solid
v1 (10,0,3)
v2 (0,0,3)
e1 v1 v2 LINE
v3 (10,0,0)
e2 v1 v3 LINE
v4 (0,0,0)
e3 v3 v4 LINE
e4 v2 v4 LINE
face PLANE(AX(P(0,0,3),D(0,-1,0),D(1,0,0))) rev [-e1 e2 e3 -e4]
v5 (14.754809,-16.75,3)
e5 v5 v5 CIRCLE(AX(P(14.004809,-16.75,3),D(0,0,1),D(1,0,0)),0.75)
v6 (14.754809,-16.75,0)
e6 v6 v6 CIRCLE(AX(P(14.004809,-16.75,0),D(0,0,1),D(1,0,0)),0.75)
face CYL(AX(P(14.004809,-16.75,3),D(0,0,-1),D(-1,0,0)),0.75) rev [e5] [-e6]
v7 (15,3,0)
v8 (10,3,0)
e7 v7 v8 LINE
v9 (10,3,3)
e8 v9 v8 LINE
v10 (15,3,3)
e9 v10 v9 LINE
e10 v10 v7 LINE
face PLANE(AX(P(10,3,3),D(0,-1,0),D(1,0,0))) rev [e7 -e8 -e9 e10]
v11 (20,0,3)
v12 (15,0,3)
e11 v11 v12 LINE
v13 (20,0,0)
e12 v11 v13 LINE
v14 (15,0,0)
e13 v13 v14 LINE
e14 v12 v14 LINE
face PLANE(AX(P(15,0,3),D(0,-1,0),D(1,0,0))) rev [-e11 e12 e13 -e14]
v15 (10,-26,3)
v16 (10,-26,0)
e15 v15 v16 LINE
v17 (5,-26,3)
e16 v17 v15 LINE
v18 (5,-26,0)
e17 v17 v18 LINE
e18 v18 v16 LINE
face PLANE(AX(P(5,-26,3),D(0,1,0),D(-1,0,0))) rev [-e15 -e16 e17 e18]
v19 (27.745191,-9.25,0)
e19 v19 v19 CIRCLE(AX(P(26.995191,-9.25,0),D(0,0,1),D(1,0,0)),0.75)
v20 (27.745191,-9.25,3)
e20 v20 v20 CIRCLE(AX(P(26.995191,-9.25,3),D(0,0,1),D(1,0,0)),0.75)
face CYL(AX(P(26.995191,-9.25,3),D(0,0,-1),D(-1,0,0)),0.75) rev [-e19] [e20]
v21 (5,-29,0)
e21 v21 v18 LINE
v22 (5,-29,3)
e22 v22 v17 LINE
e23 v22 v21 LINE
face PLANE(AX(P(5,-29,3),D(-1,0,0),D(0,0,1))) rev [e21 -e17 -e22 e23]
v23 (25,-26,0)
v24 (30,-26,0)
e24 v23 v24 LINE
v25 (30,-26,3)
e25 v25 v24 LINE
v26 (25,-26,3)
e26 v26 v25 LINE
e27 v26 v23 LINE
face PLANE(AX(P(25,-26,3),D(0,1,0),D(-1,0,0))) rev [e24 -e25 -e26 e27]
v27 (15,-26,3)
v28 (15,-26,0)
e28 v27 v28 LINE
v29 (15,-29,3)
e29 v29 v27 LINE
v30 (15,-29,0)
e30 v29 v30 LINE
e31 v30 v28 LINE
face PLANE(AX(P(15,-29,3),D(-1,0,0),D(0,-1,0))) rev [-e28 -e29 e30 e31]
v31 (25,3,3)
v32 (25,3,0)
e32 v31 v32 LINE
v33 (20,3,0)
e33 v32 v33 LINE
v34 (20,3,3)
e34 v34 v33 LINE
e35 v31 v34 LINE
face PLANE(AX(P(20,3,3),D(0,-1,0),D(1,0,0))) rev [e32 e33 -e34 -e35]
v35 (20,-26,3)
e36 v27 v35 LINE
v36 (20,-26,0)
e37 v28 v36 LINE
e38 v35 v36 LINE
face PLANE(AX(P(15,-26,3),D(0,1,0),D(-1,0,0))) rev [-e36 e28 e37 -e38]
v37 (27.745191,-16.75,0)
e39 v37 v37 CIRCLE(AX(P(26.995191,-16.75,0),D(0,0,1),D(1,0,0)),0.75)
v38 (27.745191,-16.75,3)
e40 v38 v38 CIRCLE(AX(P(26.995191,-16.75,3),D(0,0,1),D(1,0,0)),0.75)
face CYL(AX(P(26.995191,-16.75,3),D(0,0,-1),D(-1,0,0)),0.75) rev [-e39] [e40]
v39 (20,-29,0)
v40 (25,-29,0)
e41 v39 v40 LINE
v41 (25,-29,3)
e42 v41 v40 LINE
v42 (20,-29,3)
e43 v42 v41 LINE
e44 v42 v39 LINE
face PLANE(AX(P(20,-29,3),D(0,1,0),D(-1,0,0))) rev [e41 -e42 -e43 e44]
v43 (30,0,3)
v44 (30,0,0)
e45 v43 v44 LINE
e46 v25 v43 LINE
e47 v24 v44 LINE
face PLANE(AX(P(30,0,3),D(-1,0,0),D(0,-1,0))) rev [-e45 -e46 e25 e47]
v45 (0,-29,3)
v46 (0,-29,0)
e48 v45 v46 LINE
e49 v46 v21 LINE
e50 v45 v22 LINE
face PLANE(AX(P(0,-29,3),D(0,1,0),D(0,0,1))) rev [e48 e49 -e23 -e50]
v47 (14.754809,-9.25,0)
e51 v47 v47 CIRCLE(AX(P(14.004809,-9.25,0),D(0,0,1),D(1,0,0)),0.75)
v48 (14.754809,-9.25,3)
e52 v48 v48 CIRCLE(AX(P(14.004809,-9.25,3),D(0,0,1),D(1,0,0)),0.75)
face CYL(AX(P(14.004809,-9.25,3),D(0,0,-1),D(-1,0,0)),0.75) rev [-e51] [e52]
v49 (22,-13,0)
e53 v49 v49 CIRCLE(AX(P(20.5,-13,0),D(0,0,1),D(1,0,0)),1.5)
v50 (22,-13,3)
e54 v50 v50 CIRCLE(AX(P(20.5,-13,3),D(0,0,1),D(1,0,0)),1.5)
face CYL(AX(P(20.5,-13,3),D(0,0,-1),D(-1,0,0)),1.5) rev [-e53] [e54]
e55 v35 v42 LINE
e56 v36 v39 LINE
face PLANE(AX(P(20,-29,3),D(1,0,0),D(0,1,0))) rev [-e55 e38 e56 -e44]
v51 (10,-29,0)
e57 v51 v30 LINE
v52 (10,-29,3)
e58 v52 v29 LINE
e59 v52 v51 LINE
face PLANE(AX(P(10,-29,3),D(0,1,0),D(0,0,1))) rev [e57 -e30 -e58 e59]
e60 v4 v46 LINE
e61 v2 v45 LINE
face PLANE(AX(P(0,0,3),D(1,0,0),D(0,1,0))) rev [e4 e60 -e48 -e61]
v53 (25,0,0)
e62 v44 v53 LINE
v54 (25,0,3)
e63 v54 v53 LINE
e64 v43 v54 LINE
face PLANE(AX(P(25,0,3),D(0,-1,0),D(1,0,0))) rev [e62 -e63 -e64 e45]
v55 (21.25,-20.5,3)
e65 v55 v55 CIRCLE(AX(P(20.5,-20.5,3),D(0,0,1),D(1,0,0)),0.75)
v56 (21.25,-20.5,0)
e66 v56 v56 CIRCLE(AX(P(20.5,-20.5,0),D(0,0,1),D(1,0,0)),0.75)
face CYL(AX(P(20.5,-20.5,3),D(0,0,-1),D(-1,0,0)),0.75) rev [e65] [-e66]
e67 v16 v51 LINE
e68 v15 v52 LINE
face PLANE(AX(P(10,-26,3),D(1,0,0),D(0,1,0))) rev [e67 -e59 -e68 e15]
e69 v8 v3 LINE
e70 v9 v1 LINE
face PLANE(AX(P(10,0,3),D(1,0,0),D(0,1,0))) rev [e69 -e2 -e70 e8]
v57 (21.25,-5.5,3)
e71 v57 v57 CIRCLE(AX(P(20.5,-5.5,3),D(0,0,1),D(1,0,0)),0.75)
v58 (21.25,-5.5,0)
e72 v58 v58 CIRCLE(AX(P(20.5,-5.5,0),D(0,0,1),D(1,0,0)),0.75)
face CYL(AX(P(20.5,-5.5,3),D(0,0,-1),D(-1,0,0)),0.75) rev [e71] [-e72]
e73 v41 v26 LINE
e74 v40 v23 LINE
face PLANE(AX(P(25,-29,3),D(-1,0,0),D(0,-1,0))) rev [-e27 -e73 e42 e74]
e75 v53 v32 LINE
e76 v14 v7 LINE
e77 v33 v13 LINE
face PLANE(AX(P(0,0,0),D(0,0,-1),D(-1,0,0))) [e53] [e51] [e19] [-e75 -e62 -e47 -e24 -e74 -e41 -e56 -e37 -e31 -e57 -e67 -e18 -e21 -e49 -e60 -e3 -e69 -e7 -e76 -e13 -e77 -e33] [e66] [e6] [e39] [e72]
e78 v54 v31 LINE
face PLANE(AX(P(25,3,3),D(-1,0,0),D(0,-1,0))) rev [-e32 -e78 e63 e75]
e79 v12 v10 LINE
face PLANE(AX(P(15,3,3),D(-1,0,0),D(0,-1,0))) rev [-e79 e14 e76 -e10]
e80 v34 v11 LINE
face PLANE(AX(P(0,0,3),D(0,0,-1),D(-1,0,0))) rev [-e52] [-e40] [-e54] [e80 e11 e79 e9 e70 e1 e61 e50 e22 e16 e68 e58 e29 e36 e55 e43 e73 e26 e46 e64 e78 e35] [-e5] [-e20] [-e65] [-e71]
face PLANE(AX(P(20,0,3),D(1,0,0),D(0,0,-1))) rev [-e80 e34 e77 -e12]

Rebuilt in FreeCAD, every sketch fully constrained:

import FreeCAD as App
import Part
import Sketcher
Q = App.Units.Quantity

doc = App.newDocument("Part")
params = doc.addObject("Spreadsheet::Sheet", "Params")
for row, (alias, value) in enumerate([
    ("sketch1_diameter", "3 mm"),
    ("sketch1_diameter2", "1.5 mm"),
    ("sketch1_width", "10 mm"),
    ("sketch1_height", "3 mm"),
    ("sketch1_height2", "29 mm"),
    ("pad1_length", "3 mm"),
], start=1):
    params.set(f"A{row}", alias)
    params.set(f"B{row}", "=" + value)
    params.setAlias(f"B{row}", alias)

body = doc.addObject("PartDesign::Body", "Body")

# Sketch on XY plane
sketch1 = body.newObject("Sketcher::SketchObject", "Sketch")
sketch1.AttachmentSupport = (doc.getObject("XY_Plane"), [""])
sketch1.MapMode = "FlatFace"
sketch1.addGeometry(Part.LineSegment(App.Vector(10, 3, 0), App.Vector(10, 0, 0)), False)
sketch1.addGeometry(Part.LineSegment(App.Vector(10, 0, 0), App.Vector(0, 0, 0)), False)
sketch1.addGeometry(Part.LineSegment(App.Vector(0, 0, 0), App.Vector(0, -29, 0)), False)
sketch1.addGeometry(Part.LineSegment(App.Vector(0, -29, 0), App.Vector(5, -29, 0)), False)
sketch1.addGeometry(Part.LineSegment(App.Vector(5, -29, 0), App.Vector(5, -26, 0)), False)
sketch1.addGeometry(Part.LineSegment(App.Vector(5, -26, 0), App.Vector(10, -26, 0)), False)
sketch1.addGeometry(Part.LineSegment(App.Vector(10, -26, 0), App.Vector(10, -29, 0)), False)
sketch1.addGeometry(Part.LineSegment(App.Vector(10, -29, 0), App.Vector(15, -29, 0)), False)
sketch1.addGeometry(Part.LineSegment(App.Vector(15, -29, 0), App.Vector(15, -26, 0)), False)
sketch1.addGeometry(Part.LineSegment(App.Vector(15, -26, 0), App.Vector(20, -26, 0)), False)
sketch1.addGeometry(Part.LineSegment(App.Vector(20, -26, 0), App.Vector(20, -29, 0)), False)
sketch1.addGeometry(Part.LineSegment(App.Vector(20, -29, 0), App.Vector(25, -29, 0)), False)
sketch1.addGeometry(Part.LineSegment(App.Vector(25, -29, 0), App.Vector(25, -26, 0)), False)
sketch1.addGeometry(Part.LineSegment(App.Vector(25, -26, 0), App.Vector(30, -26, 0)), False)
sketch1.addGeometry(Part.LineSegment(App.Vector(30, -26, 0), App.Vector(30, 0, 0)), False)
sketch1.addGeometry(Part.LineSegment(App.Vector(30, 0, 0), App.Vector(25, 0, 0)), False)
sketch1.addGeometry(Part.LineSegment(App.Vector(25, 0, 0), App.Vector(25, 3, 0)), False)
sketch1.addGeometry(Part.LineSegment(App.Vector(25, 3, 0), App.Vector(20, 3, 0)), False)
sketch1.addGeometry(Part.LineSegment(App.Vector(20, 3, 0), App.Vector(20, 0, 0)), False)
sketch1.addGeometry(Part.LineSegment(App.Vector(20, 0, 0), App.Vector(15, 0, 0)), False)
sketch1.addGeometry(Part.LineSegment(App.Vector(15, 0, 0), App.Vector(15, 3, 0)), False)
sketch1.addGeometry(Part.LineSegment(App.Vector(15, 3, 0), App.Vector(10, 3, 0)), False)
sketch1.addGeometry(Part.Circle(App.Vector(20.5, -20.5, 0), App.Vector(0, 0, 1), 0.8), False)
sketch1.addGeometry(Part.Circle(App.Vector(27, -16.8, 0), App.Vector(0, 0, 1), 0.8), False)
sketch1.addGeometry(Part.Circle(App.Vector(14, -16.8, 0), App.Vector(0, 0, 1), 0.8), False)
sketch1.addGeometry(Part.Circle(App.Vector(27, -9.2, 0), App.Vector(0, 0, 1), 0.8), False)
sketch1.addGeometry(Part.Circle(App.Vector(20.5, -13, 0), App.Vector(0, 0, 1), 1.5), False)
sketch1.addGeometry(Part.Circle(App.Vector(20.5, -5.5, 0), App.Vector(0, 0, 1), 0.8), False)
sketch1.addGeometry(Part.Circle(App.Vector(14, -9.2, 0), App.Vector(0, 0, 1), 0.8), False)
sketch1.addConstraint(Sketcher.Constraint("Coincident", 0, 2, 1, 1))
sketch1.addConstraint(Sketcher.Constraint("Coincident", 1, 2, 2, 1))
sketch1.addConstraint(Sketcher.Constraint("Coincident", 2, 2, 3, 1))
sketch1.addConstraint(Sketcher.Constraint("Coincident", 3, 2, 4, 1))
sketch1.addConstraint(Sketcher.Constraint("Coincident", 4, 2, 5, 1))
sketch1.addConstraint(Sketcher.Constraint("Coincident", 5, 2, 6, 1))
sketch1.addConstraint(Sketcher.Constraint("Coincident", 6, 2, 7, 1))
sketch1.addConstraint(Sketcher.Constraint("Coincident", 7, 2, 8, 1))
sketch1.addConstraint(Sketcher.Constraint("Coincident", 8, 2, 9, 1))
sketch1.addConstraint(Sketcher.Constraint("Coincident", 9, 2, 10, 1))
sketch1.addConstraint(Sketcher.Constraint("Coincident", 10, 2, 11, 1))
sketch1.addConstraint(Sketcher.Constraint("Coincident", 11, 2, 12, 1))
sketch1.addConstraint(Sketcher.Constraint("Coincident", 12, 2, 13, 1))
sketch1.addConstraint(Sketcher.Constraint("Coincident", 13, 2, 14, 1))
sketch1.addConstraint(Sketcher.Constraint("Coincident", 14, 2, 15, 1))
sketch1.addConstraint(Sketcher.Constraint("Coincident", 15, 2, 16, 1))
sketch1.addConstraint(Sketcher.Constraint("Coincident", 16, 2, 17, 1))
sketch1.addConstraint(Sketcher.Constraint("Coincident", 17, 2, 18, 1))
sketch1.addConstraint(Sketcher.Constraint("Coincident", 18, 2, 19, 1))
sketch1.addConstraint(Sketcher.Constraint("Coincident", 19, 2, 20, 1))
sketch1.addConstraint(Sketcher.Constraint("Coincident", 20, 2, 21, 1))
sketch1.addConstraint(Sketcher.Constraint("Coincident", 21, 2, 0, 1))
sketch1.addConstraint(Sketcher.Constraint("Vertical", 0))
sketch1.addConstraint(Sketcher.Constraint("Horizontal", 1))
sketch1.addConstraint(Sketcher.Constraint("Vertical", 2))
sketch1.addConstraint(Sketcher.Constraint("Horizontal", 3))
sketch1.addConstraint(Sketcher.Constraint("Vertical", 4))
sketch1.addConstraint(Sketcher.Constraint("Horizontal", 5))
sketch1.addConstraint(Sketcher.Constraint("Vertical", 6))
sketch1.addConstraint(Sketcher.Constraint("Horizontal", 7))
sketch1.addConstraint(Sketcher.Constraint("Vertical", 8))
sketch1.addConstraint(Sketcher.Constraint("Horizontal", 9))
sketch1.addConstraint(Sketcher.Constraint("Vertical", 10))
sketch1.addConstraint(Sketcher.Constraint("Horizontal", 11))
sketch1.addConstraint(Sketcher.Constraint("Vertical", 12))
sketch1.addConstraint(Sketcher.Constraint("Horizontal", 13))
sketch1.addConstraint(Sketcher.Constraint("Vertical", 14))
sketch1.addConstraint(Sketcher.Constraint("Horizontal", 15))
sketch1.addConstraint(Sketcher.Constraint("Vertical", 16))
sketch1.addConstraint(Sketcher.Constraint("Horizontal", 17))
sketch1.addConstraint(Sketcher.Constraint("Vertical", 18))
sketch1.addConstraint(Sketcher.Constraint("Horizontal", 19))
sketch1.addConstraint(Sketcher.Constraint("Vertical", 20))
sketch1.addConstraint(Sketcher.Constraint("Horizontal", 21))
sketch1.addConstraint(Sketcher.Constraint("Coincident", 1, 2, -1, 1))
sketch1.addConstraint(Sketcher.Constraint("Equal", 22, 23))
sketch1.addConstraint(Sketcher.Constraint("Equal", 23, 24))
sketch1.addConstraint(Sketcher.Constraint("Equal", 24, 25))
sketch1.addConstraint(Sketcher.Constraint("Equal", 25, 27))
sketch1.addConstraint(Sketcher.Constraint("Equal", 27, 28))
sketch1.addConstraint(Sketcher.Constraint("PointOnObject", 14, 2, -1))
sketch1.addConstraint(Sketcher.Constraint("PointOnObject", 18, 2, -1))
sketch1.addConstraint(Sketcher.Constraint("Horizontal", 23, 3, 24, 3))
sketch1.addConstraint(Sketcher.Constraint("Horizontal", 25, 3, 28, 3))
sketch1.addConstraint(Sketcher.Constraint("Horizontal", 3, 2, 6, 2))
sketch1.addConstraint(Sketcher.Constraint("Horizontal", 5, 2, 8, 2))
sketch1.addConstraint(Sketcher.Constraint("Horizontal", 7, 2, 10, 2))
sketch1.addConstraint(Sketcher.Constraint("Horizontal", 9, 2, 12, 2))
sketch1.addConstraint(Sketcher.Constraint("Horizontal", 17, 2, 20, 2))
sketch1.addConstraint(Sketcher.Constraint("Vertical", 23, 3, 25, 3))
sketch1.addConstraint(Sketcher.Constraint("Vertical", 22, 3, 26, 3))
sketch1.addConstraint(Sketcher.Constraint("Vertical", 26, 3, 27, 3))
sketch1.addConstraint(Sketcher.Constraint("Vertical", 24, 3, 28, 3))
sketch1.addConstraint(Sketcher.Constraint("Vertical", 0, 2, 5, 2))
sketch1.addConstraint(Sketcher.Constraint("Vertical", 12, 2, 15, 2))
sketch1.addConstraint(Sketcher.Constraint("Vertical", 10, 2, 17, 2))
sketch1.addConstraint(Sketcher.Constraint("Vertical", 8, 2, 19, 2))
sketch1.addConstraint(Sketcher.Constraint("Equal", 3, 5))
sketch1.addConstraint(Sketcher.Constraint("Equal", 5, 7))
sketch1.addConstraint(Sketcher.Constraint("Equal", 7, 9))
sketch1.addConstraint(Sketcher.Constraint("Equal", 9, 11))
sketch1.addConstraint(Sketcher.Constraint("Equal", 11, 13))
sketch1.addConstraint(Sketcher.Constraint("Equal", 0, 4))
sketch1.addConstraint(Sketcher.Constraint("Diameter", 26, Q("3 mm")))
sketch1.addConstraint(Sketcher.Constraint("Diameter", 22, Q("1.5 mm")))
sketch1.addConstraint(Sketcher.Constraint("DistanceX", 1, 2, 1, 1, Q("10 mm")))
sketch1.addConstraint(Sketcher.Constraint("DistanceY", 0, 2, 0, 1, Q("3 mm")))
sketch1.addConstraint(Sketcher.Constraint("DistanceY", 2, 2, 2, 1, Q("29 mm")))
sketch1.addConstraint(Sketcher.Constraint("DistanceY", 26, 3, -1, 1, Q("13 mm")))
sketch1.addConstraint(Sketcher.Constraint("DistanceY", 22, 3, 27, 3, Q("15 mm")))
sketch1.addConstraint(Sketcher.Constraint("DistanceX", -1, 1, 22, 3, Q("20.5 mm")))
sketch1.addConstraint(Sketcher.Constraint("DistanceY", 22, 3, -1, 1, Q("20.5 mm")))
sketch1.addConstraint(Sketcher.Constraint("DistanceY", 23, 3, 25, 3, Q("7.5 mm")))
sketch1.addConstraint(Sketcher.Constraint("DistanceY", 23, 3, -1, 1, Q("16.75 mm")))
sketch1.addConstraint(Sketcher.Constraint("DistanceX", -1, 1, 23, 3, Q("26.995191 mm")))
sketch1.addConstraint(Sketcher.Constraint("DistanceX", -1, 1, 24, 3, Q("14.004809 mm")))
sketch1.setExpression("Constraints[73]", "Params.sketch1_diameter")
sketch1.setExpression("Constraints[74]", "Params.sketch1_diameter2")
sketch1.setExpression("Constraints[75]", "Params.sketch1_width")
sketch1.setExpression("Constraints[76]", "Params.sketch1_height")
sketch1.setExpression("Constraints[77]", "Params.sketch1_height2")
pad1 = body.newObject("PartDesign::Pad", "Pad")
pad1.Profile = sketch1
pad1.setExpression("Length", "Params.pad1_length")

doc.recompute()
